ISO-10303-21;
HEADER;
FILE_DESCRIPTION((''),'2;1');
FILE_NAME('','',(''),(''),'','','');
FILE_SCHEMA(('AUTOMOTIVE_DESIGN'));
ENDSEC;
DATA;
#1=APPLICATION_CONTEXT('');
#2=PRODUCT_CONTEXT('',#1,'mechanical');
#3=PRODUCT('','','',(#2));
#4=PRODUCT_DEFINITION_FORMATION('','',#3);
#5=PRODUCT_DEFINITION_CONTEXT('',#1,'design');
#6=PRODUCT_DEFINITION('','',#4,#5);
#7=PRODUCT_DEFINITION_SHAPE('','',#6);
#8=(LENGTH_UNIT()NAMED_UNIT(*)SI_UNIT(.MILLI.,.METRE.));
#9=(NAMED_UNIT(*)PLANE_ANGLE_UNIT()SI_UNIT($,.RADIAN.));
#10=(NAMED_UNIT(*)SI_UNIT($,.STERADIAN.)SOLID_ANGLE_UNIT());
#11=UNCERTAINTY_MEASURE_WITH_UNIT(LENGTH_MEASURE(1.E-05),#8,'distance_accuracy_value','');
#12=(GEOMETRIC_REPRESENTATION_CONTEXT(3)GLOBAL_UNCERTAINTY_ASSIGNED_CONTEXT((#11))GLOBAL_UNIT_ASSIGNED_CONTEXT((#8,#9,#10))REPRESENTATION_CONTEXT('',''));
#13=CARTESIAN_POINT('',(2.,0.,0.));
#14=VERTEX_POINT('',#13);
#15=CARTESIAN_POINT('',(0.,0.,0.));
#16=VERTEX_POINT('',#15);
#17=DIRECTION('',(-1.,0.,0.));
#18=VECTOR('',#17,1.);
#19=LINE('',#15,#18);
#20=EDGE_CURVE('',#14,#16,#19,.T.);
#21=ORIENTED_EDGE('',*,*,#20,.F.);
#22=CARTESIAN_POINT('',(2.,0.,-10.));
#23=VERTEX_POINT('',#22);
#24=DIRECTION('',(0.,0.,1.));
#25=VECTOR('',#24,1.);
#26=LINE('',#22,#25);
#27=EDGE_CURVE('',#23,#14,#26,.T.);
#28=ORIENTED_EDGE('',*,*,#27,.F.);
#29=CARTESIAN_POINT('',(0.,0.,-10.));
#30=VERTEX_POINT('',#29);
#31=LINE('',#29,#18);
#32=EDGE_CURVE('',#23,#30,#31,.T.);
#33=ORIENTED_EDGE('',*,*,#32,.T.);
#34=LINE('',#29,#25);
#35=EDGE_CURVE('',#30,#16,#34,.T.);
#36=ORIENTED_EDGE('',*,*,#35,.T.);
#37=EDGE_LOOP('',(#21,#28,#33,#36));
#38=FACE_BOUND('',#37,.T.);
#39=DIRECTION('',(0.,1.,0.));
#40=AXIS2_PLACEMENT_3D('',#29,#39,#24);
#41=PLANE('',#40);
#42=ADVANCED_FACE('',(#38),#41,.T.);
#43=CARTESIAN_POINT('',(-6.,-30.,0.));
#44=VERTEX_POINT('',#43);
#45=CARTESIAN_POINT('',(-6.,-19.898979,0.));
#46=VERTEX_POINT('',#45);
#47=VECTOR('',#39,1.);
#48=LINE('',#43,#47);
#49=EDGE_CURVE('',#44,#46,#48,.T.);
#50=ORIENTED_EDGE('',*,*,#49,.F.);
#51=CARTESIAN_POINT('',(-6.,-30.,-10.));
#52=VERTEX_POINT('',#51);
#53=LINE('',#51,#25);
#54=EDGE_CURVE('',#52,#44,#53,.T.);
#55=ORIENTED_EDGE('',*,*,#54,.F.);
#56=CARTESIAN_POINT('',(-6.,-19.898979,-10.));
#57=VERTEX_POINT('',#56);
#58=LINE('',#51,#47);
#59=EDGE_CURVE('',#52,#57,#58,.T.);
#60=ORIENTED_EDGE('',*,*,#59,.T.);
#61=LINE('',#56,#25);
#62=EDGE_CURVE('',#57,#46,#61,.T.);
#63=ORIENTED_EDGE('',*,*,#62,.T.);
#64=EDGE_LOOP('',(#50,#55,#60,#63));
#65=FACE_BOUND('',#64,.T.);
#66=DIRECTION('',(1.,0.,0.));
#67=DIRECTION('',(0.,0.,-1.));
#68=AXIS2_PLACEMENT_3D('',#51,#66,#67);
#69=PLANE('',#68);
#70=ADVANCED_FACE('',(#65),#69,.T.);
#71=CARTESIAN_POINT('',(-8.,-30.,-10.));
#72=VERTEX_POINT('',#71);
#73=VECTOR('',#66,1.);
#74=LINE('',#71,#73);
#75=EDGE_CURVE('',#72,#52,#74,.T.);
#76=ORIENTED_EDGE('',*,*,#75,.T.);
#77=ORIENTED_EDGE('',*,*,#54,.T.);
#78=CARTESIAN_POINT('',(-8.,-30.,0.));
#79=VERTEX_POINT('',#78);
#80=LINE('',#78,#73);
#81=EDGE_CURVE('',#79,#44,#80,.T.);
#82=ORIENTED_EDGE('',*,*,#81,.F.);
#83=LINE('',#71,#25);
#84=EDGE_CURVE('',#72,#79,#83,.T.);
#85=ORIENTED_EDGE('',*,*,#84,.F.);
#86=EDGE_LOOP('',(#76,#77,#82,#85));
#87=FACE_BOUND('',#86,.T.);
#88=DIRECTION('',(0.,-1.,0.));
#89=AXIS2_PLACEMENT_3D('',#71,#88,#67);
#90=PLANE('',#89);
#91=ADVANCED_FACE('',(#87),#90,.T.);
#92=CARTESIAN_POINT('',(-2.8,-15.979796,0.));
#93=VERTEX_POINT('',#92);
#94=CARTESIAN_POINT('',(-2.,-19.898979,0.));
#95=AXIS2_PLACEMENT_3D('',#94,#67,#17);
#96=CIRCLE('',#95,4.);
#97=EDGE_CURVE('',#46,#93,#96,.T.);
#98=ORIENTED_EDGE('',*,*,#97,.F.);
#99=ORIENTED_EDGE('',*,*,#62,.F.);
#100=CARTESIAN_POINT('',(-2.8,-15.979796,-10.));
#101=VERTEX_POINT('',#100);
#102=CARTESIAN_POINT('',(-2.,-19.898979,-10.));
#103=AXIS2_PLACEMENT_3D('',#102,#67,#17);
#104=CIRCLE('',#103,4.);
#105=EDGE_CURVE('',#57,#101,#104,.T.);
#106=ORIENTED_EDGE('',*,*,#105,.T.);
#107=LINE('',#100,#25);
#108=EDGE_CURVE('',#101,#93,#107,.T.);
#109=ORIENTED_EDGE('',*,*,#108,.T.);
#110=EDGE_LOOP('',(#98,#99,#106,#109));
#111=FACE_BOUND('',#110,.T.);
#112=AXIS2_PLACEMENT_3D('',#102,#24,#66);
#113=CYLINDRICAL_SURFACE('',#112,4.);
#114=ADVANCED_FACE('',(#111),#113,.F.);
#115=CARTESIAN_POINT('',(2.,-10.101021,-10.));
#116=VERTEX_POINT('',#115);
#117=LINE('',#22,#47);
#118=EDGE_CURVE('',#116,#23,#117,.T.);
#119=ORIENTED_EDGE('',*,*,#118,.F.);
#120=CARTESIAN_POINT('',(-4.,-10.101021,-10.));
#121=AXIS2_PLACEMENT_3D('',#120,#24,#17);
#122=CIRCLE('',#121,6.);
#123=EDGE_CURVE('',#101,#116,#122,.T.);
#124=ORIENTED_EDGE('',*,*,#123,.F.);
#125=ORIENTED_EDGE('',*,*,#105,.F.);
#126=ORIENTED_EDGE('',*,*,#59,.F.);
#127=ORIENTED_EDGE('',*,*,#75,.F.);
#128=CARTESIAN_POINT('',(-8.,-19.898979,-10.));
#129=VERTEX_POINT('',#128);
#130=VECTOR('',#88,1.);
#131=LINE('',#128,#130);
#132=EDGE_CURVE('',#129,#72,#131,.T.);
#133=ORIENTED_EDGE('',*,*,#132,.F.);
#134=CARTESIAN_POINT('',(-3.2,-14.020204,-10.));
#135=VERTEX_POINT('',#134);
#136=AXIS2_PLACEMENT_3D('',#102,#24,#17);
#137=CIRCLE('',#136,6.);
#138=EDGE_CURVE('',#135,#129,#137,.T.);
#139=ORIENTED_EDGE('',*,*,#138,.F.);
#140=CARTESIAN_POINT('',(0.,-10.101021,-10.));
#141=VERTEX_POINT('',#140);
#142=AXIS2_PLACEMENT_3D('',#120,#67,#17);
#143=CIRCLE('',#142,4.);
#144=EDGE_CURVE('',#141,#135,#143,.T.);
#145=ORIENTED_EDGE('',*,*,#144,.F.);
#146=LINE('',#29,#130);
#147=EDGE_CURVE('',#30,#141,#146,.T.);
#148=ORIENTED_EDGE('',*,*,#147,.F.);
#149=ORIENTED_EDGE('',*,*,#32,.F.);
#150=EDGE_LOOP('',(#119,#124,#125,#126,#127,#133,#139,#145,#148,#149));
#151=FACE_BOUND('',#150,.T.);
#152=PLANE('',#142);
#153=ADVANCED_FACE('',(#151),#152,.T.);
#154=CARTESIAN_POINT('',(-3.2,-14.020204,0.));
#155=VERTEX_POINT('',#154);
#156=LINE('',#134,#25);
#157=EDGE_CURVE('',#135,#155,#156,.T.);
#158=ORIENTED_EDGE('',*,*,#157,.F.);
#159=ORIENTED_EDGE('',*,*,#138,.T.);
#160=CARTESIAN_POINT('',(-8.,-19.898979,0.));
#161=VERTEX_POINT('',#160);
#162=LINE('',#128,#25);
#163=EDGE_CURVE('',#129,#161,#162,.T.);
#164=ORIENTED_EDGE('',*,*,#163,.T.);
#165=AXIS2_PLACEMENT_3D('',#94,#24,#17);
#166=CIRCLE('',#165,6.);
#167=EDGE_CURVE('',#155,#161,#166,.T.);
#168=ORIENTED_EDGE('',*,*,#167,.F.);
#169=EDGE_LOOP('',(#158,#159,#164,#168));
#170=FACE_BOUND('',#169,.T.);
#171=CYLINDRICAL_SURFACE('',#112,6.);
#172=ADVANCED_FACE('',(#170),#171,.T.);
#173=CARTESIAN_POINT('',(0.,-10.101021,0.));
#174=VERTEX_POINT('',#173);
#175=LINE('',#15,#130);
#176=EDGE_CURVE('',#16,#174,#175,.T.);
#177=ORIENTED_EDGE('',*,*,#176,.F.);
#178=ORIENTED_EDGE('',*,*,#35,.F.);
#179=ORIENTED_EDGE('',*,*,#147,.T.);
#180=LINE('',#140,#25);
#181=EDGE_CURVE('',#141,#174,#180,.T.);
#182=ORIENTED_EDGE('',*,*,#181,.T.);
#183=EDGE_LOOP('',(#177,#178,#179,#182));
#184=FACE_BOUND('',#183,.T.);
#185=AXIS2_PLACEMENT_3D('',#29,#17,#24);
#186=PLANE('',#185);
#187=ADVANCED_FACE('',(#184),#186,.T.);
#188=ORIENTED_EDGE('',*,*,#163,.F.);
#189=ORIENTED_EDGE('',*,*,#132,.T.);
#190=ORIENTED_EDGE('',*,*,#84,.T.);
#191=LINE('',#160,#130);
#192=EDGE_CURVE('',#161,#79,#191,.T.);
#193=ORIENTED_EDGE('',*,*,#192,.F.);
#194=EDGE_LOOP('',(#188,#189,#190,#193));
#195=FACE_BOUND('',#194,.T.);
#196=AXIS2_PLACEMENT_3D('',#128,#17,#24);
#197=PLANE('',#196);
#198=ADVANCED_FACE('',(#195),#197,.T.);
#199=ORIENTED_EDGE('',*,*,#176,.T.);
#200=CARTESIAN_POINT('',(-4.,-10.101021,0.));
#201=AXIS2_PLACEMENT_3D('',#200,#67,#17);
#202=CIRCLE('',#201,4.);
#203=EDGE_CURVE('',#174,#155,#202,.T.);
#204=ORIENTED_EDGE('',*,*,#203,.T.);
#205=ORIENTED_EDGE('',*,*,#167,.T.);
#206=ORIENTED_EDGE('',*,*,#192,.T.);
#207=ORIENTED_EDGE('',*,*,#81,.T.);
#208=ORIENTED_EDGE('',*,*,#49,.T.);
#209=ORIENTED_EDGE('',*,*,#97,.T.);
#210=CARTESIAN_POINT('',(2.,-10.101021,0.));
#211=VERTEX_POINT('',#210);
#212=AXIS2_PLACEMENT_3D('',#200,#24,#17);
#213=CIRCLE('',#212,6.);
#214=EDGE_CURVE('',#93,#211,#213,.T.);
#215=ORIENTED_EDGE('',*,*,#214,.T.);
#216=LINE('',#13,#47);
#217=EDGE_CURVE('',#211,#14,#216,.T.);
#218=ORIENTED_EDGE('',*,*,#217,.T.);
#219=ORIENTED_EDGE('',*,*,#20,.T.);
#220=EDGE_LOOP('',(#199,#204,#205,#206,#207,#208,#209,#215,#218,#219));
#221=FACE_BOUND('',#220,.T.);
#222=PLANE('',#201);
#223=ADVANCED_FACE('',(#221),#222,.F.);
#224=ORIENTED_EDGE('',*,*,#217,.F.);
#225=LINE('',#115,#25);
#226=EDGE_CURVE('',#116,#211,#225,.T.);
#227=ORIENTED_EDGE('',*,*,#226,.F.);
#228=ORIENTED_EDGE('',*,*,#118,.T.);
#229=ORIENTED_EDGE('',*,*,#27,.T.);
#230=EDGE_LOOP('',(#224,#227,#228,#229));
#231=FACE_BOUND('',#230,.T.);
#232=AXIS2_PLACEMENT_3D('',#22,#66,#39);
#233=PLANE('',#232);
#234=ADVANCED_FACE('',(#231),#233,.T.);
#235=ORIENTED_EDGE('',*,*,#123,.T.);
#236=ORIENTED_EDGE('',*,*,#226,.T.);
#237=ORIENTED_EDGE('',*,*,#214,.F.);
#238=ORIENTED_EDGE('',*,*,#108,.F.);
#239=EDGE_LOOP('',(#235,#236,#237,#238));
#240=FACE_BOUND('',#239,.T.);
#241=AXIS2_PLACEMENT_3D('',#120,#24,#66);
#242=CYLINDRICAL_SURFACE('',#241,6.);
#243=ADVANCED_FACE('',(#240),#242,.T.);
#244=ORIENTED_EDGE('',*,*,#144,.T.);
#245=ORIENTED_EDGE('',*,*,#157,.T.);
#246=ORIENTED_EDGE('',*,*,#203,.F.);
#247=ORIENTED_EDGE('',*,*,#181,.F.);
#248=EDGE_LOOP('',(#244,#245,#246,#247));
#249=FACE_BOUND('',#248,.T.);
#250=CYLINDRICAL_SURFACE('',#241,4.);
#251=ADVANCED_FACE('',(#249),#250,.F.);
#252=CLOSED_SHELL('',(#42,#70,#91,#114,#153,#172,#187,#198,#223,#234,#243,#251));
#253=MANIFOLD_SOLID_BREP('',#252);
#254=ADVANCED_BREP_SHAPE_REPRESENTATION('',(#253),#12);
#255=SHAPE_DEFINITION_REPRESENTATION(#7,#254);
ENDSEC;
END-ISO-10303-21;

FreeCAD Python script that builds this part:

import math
import FreeCAD as App
import Part
import Sketcher
Q = App.Units.Quantity

doc = App.newDocument("Part")
body = doc.addObject("PartDesign::Body", "Body")

sketch1 = doc.addObject("Sketcher::SketchObject", "Sketch")
body.addObject(sketch1)
sketch1.AttachmentSupport = (doc.XY_Plane, [""])
sketch1.MapMode = "FlatFace"
sketch1.addGeometry([
    Part.LineSegment(App.Vector(2, 0, 0), App.Vector(0, 0, 0)),
    Part.LineSegment(App.Vector(0, 0, 0), App.Vector(0, -10.101021, 0)),
    Part.ArcOfCircle(Part.Circle(App.Vector(-4, -10.101021, 0), App.Vector(0, 0, 1), 4), math.radians(-78.463041), math.radians(0)),
    Part.ArcOfCircle(Part.Circle(App.Vector(-2, -19.898979, 0), App.Vector(0, 0, 1), 6), math.radians(101.536959), math.radians(180)),
    Part.LineSegment(App.Vector(-8, -19.898979, 0), App.Vector(-8, -30, 0)),
    Part.LineSegment(App.Vector(-8, -30, 0), App.Vector(-6, -30, 0)),
    Part.LineSegment(App.Vector(-6, -30, 0), App.Vector(-6, -19.898979, 0)),
    Part.ArcOfCircle(Part.Circle(App.Vector(-2, -19.898979, 0), App.Vector(0, 0, 1), 4), math.radians(101.536959), math.radians(180)),
    Part.ArcOfCircle(Part.Circle(App.Vector(-4, -10.101021, 0), App.Vector(0, 0, 1), 6), math.radians(-78.463041), math.radians(0)),
    Part.LineSegment(App.Vector(2, -10.101021, 0), App.Vector(2, 0, 0)),
], False)
sketch1.addConstraint([
    Sketcher.Constraint("Coincident", 0, 2, 1, 1),
    Sketcher.Constraint("Tangent", 1, 2, 2, 2),
    Sketcher.Constraint("Tangent", 2, 1, 3, 1),
    Sketcher.Constraint("Tangent", 3, 2, 4, 1),
    Sketcher.Constraint("Coincident", 4, 2, 5, 1),
    Sketcher.Constraint("Coincident", 5, 2, 6, 1),
    Sketcher.Constraint("Tangent", 6, 2, 7, 2),
    Sketcher.Constraint("Tangent", 7, 1, 8, 1),
    Sketcher.Constraint("Tangent", 8, 2, 9, 1),
    Sketcher.Constraint("Coincident", 9, 2, 0, 1),
    Sketcher.Constraint("Horizontal", 0),
    Sketcher.Constraint("Vertical", 1),
    Sketcher.Constraint("Vertical", 4),
    Sketcher.Constraint("Horizontal", 5),
    Sketcher.Constraint("Vertical", 6),
    Sketcher.Constraint("Vertical", 9),
    Sketcher.Constraint("Coincident", 0, 2, -1, 1),
    Sketcher.Constraint("Coincident", 7, 3, 3, 3),
    Sketcher.Constraint("Coincident", 8, 3, 2, 3),
    Sketcher.Constraint("Equal", 2, 7),
    Sketcher.Constraint("Equal", 1, 4),
    Sketcher.Constraint("Radius", 2, Q("4 mm")),
    Sketcher.Constraint("Radius", 3, Q("6 mm")),
    Sketcher.Constraint("DistanceX", 3, 3, -1, 1, Q("2 mm")),
    Sketcher.Constraint("DistanceY", 4, 2, -1, 1, Q("30 mm")),
])
pad1 = doc.addObject("PartDesign::Pad", "Pad")
body.addObject(pad1)
pad1.Profile = sketch1
pad1.Length = 10
pad1.Reversed = True

doc.recompute()
